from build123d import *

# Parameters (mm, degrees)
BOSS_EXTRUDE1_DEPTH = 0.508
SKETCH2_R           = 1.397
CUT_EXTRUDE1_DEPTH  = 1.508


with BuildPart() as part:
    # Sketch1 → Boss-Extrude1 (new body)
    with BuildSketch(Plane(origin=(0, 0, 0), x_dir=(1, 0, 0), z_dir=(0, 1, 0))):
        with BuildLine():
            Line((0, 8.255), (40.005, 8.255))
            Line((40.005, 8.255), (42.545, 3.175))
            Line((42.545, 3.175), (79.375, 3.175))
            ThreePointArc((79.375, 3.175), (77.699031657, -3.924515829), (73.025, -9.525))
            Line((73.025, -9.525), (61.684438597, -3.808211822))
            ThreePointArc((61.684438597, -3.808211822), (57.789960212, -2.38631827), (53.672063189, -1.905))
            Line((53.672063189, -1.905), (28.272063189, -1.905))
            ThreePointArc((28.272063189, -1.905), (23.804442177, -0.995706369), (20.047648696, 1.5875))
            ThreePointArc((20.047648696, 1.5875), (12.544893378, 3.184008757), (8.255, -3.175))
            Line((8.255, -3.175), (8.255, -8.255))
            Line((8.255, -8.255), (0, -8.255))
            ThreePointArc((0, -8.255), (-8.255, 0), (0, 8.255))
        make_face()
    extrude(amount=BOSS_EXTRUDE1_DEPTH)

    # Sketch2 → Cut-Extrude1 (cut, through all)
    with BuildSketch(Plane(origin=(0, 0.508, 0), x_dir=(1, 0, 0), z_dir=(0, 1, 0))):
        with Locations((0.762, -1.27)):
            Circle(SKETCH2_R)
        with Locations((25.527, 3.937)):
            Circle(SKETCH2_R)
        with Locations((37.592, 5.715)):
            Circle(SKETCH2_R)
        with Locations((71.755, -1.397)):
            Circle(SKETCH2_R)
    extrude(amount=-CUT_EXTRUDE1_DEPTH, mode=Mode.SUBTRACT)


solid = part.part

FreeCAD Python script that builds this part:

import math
import FreeCAD as App
import Part
import Sketcher
from FreeCAD import Vector
Q = App.Units.Quantity

doc = App.newDocument("Part")
params = doc.addObject("Spreadsheet::Sheet", "Params")
for row, (alias, value) in enumerate([
    ("sketch1_radius", "0.7 in"),
    ("sketch1_width", "1 in"),
    ("sketch1_radius2", "0.27 in"),
    ("sketch1_radius3", "0.45 in"),
    ("sketch1_height", "0.2 in"),
    ("pad1_length", "0.02 in"),
    ("sketch2_diameter", "0.11 in"),
], start=1):
    params.set(f"A{row}", alias)
    params.set(f"B{row}", "=" + value)
    params.setAlias(f"B{row}", alias)

body = doc.addObject("PartDesign::Body", "Body")

# Sketch on XZ plane
sketch1 = body.newObject("Sketcher::SketchObject", "Sketch")
sketch1.AttachmentSupport = (doc.getObject("XZ_Plane"), [""])
sketch1.MapMode = "FlatFace"
sketch1.addGeometry([
    Part.LineSegment(Vector(40, -8, 0), Vector(0, -8, 0)),  # 0
    Part.ArcOfCircle(Part.Circle(Vector(0, 0, 0), Vector(0, 0, 1), 8), math.radians(90), math.radians(270)),  # 1
    Part.LineSegment(Vector(0, 8, 0), Vector(8, 8, 0)),  # 2
    Part.LineSegment(Vector(8, 8, 0), Vector(8, 3, 0)),  # 3
    Part.ArcOfCircle(Part.Circle(Vector(15, 3, 0), Vector(0, 0, 1), 7), math.radians(-180), math.radians(-44)),  # 4
    Part.ArcOfCircle(Part.Circle(Vector(28, -10, 0), Vector(0, 0, 1), 11), math.radians(90), math.radians(136)),  # 5
    Part.LineSegment(Vector(28, 2, 0), Vector(54, 2, 0)),  # 6
    Part.ArcOfCircle(Part.Circle(Vector(54, 20, 0), Vector(0, 0, 1), 18), math.radians(-90), math.radians(-63)),  # 7
    Part.LineSegment(Vector(62, 4, 0), Vector(73, 10, 0)),  # 8
    Part.ArcOfCircle(Part.Circle(Vector(64, -3, 0), Vector(0, 0, 1), 16), math.radians(0), math.radians(53)),  # 9
    Part.LineSegment(Vector(79, -3, 0), Vector(43, -3, 0)),  # 10
    Part.LineSegment(Vector(43, -3, 0), Vector(40, -8, 0)),  # 11
], False)
sketch1.addConstraint([
    Sketcher.Constraint("Tangent", 0, 2, 1, 2),
    Sketcher.Constraint("Tangent", 1, 1, 2, 1),
    Sketcher.Constraint("Coincident", 2, 2, 3, 1),
    Sketcher.Constraint("Tangent", 3, 2, 4, 1),
    Sketcher.Constraint("Tangent", 4, 2, 5, 2),
    Sketcher.Constraint("Tangent", 5, 1, 6, 1),
    Sketcher.Constraint("Coincident", 6, 2, 7, 1),
    Sketcher.Constraint("Tangent", 7, 2, 8, 1),
    Sketcher.Constraint("Coincident", 8, 2, 9, 2),
    Sketcher.Constraint("Coincident", 9, 1, 10, 1),
    Sketcher.Constraint("Coincident", 10, 2, 11, 1),
    Sketcher.Constraint("Coincident", 11, 2, 0, 1),
    Sketcher.Constraint("Horizontal", 0),
    Sketcher.Constraint("Horizontal", 2),
    Sketcher.Constraint("Vertical", 3),
    Sketcher.Constraint("Horizontal", 6),
    Sketcher.Constraint("Horizontal", 10),
    Sketcher.Constraint("Coincident", 1, 3, -1, 1),
    Sketcher.Constraint("Radius", 7, Q("0.7 in")),
    Sketcher.Constraint("DistanceX", 6, 1, 6, 2, Q("1 in")),
    Sketcher.Constraint("Radius", 4, Q("0.27 in")),
    Sketcher.Constraint("Radius", 5, Q("0.45 in")),
    Sketcher.Constraint("DistanceY", 3, 2, 3, 1, Q("0.2 in")),
    Sketcher.Constraint("Radius", 1, Q("0.325 in")),
    Sketcher.Constraint("Radius", 9, Q("0.625 in")),
    Sketcher.Constraint("Distance", 8, Q("0.5 in")),
    Sketcher.Constraint("DistanceX", 10, 2, 10, 1, Q("1.45 in")),
    Sketcher.Constraint("DistanceX", -1, 1, 9, 3, Q("2.5 in")),
    Sketcher.Constraint("DistanceY", 5, 3, 4, 3, Q("0.5 in")),
    Sketcher.Constraint("DistanceY", 9, 3, 7, 3, Q("0.8999999 in")),
    Sketcher.Constraint("DistanceY", 9, 3, 8, 2, Q("0.5 in")),
    Sketcher.Constraint("DistanceY", 9, 1, 8, 2, Q("0.5 in")),
    Sketcher.Constraint("DistanceX", 11, 2, 10, 2, Q("0.1 in")),
    Sketcher.Constraint("DistanceX", 2, 1, 2, 2, Q("0.325 in")),
])
sketch1.setExpression("Constraints[18]", "Params.sketch1_radius")
sketch1.setExpression("Constraints[19]", "Params.sketch1_width")
sketch1.setExpression("Constraints[20]", "Params.sketch1_radius2")
sketch1.setExpression("Constraints[21]", "Params.sketch1_radius3")
sketch1.setExpression("Constraints[22]", "Params.sketch1_height")
pad1 = body.newObject("PartDesign::Pad", "Pad")
pad1.Profile = sketch1
pad1.setExpression("Length", "Params.pad1_length")
pad1.Reversed = True

# Sketch on XZ plane
sketch2 = body.newObject("Sketcher::SketchObject", "Sketch001")
sketch2.AttachmentSupport = (doc.getObject("XZ_Plane"), [""])
sketch2.MapMode = "FlatFace"
sketch2.AttachmentOffset = App.Placement(Vector(0, 0, -0.02 * 25.4), App.Rotation())
sketch2.addGeometry([
    Part.Circle(Vector(0.8, 1.3, 0), Vector(0, 0, 1), 1.4),
    Part.Circle(Vector(25.5, -3.9, 0), Vector(0, 0, 1), 1.4),
    Part.Circle(Vector(37.6, -5.7, 0), Vector(0, 0, 1), 1.4),
    Part.Circle(Vector(71.8, 1.4, 0), Vector(0, 0, 1), 1.4),
], False)
sketch2.addConstraint([
    Sketcher.Constraint("Equal", 0, 1),
    Sketcher.Constraint("Equal", 1, 2),
    Sketcher.Constraint("Equal", 2, 3),
    Sketcher.Constraint("Diameter", 0, Q("0.11 in")),
    Sketcher.Constraint("DistanceX", -1, 1, 0, 3, Q("0.03 in")),
    Sketcher.Constraint("DistanceY", -1, 1, 0, 3, Q("0.05 in")),
    Sketcher.Constraint("DistanceX", -1, 1, 2, 3, Q("1.48 in")),
    Sketcher.Constraint("DistanceY", 2, 3, 1, 3, Q("0.07 in")),
    Sketcher.Constraint("DistanceY", 2, 3, 3, 3, Q("0.28 in")),
    Sketcher.Constraint("DistanceX", 1, 3, 3, 3, Q("1.82 in")),
    Sketcher.Constraint("DistanceX", -1, 1, 1, 3, Q("1.005 in")),
    Sketcher.Constraint("DistanceY", 1, 3, -1, 1, Q("0.155 in")),
])
sketch2.setExpression("Constraints[3]", "Params.sketch2_diameter")
pocket1 = body.newObject("PartDesign::Pocket", "Pocket")
pocket1.Profile = sketch2
pocket1.Type = "ThroughAll"
pocket1.Reversed = True

doc.recompute()
